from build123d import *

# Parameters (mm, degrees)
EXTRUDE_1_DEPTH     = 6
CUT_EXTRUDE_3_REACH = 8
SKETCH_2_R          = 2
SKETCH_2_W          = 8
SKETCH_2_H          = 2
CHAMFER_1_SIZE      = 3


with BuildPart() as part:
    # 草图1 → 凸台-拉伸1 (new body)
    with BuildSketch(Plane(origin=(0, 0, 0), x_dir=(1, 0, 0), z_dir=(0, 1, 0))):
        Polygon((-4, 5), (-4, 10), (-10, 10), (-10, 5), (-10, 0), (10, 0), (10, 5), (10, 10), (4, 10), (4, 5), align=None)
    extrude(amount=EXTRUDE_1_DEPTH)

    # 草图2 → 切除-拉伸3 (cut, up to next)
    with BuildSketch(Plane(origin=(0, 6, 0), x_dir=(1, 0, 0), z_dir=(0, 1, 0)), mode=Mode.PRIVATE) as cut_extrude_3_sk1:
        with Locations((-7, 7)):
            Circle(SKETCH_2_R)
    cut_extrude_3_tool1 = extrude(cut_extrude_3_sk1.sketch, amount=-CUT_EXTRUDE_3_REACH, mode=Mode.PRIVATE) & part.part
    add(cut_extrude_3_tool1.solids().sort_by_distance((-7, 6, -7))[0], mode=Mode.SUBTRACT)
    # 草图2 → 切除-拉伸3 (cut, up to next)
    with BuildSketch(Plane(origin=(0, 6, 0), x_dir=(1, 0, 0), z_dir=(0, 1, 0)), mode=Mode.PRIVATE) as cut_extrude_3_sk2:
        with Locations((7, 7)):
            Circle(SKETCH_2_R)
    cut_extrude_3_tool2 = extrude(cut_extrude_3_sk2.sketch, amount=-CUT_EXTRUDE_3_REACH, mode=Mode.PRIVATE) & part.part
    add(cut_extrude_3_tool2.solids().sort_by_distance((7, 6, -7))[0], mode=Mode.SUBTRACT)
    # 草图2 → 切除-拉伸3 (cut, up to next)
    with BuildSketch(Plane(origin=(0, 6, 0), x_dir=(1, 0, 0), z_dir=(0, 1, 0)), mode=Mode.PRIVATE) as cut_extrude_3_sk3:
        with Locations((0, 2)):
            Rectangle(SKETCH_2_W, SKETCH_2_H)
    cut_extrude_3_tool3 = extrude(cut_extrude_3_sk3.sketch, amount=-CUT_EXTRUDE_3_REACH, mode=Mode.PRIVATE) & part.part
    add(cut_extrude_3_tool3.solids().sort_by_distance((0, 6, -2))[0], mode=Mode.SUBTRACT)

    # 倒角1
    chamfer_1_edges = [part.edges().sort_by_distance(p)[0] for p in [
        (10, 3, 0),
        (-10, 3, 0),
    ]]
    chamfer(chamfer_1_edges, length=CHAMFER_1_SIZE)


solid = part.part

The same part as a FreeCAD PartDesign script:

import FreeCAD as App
import Part
import Sketcher

V = App.Vector
Q = App.Units.Quantity


def edges_at(feature, points):
    """Names of the edges that pass closest to the given points."""
    edges = feature.Shape.Edges
    near = lambda p: min(range(len(edges)), key=lambda i: edges[i].distToShape(Part.Vertex(*p))[0])
    return sorted({f"Edge{near(p) + 1}" for p in points})

doc = App.newDocument("Part")
params = doc.addObject("Spreadsheet::Sheet", "Params")
for row, (alias, value) in enumerate([
    ("sketch1_width", "6 mm"),
    ("sketch1_width2", "20 mm"),
    ("sketch1_height", "5 mm"),
    ("sketch1_height2", "10 mm"),
    ("pad1_length", "6 mm"),
    ("sketch2_diameter", "4 mm"),
    ("sketch3_diameter", "4 mm"),
    ("sketch4_width", "8 mm"),
    ("sketch4_height", "2 mm"),
    ("chamfer_size", "3 mm"),
], start=1):
    params.set(f"A{row}", alias)
    params.set(f"B{row}", "=" + value)
    params.setAlias(f"B{row}", alias)

body = doc.addObject("PartDesign::Body", "Body")

sketch1 = body.newObject("Sketcher::SketchObject", "Sketch")
sketch1.AttachmentSupport = (doc.getObject("XZ_Plane"), [""])
sketch1.MapMode = "FlatFace"
sketch1.addGeometry([
    Part.LineSegment(V(-4, -5, 0), V(-4, -10, 0)),
    Part.LineSegment(V(-4, -10, 0), V(-10, -10, 0)),
    Part.LineSegment(V(-10, -10, 0), V(-10, 0, 0)),
    Part.LineSegment(V(-10, 0, 0), V(10, 0, 0)),
    Part.LineSegment(V(10, 0, 0), V(10, -10, 0)),
    Part.LineSegment(V(10, -10, 0), V(4, -10, 0)),
    Part.LineSegment(V(4, -10, 0), V(4, -5, 0)),
    Part.LineSegment(V(4, -5, 0), V(-4, -5, 0)),
], False)
sketch1.addConstraint([
    Sketcher.Constraint("Coincident", 0, 2, 1, 1),
    Sketcher.Constraint("Coincident", 1, 2, 2, 1),
    Sketcher.Constraint("Coincident", 2, 2, 3, 1),
    Sketcher.Constraint("Coincident", 3, 2, 4, 1),
    Sketcher.Constraint("Coincident", 4, 2, 5, 1),
    Sketcher.Constraint("Coincident", 5, 2, 6, 1),
    Sketcher.Constraint("Coincident", 6, 2, 7, 1),
    Sketcher.Constraint("Coincident", 7, 2, 0, 1),
    Sketcher.Constraint("Vertical", 0),
    Sketcher.Constraint("Horizontal", 1),
    Sketcher.Constraint("Vertical", 2),
    Sketcher.Constraint("Horizontal", 3),
    Sketcher.Constraint("Vertical", 4),
    Sketcher.Constraint("Horizontal", 5),
    Sketcher.Constraint("Vertical", 6),
    Sketcher.Constraint("Horizontal", 7),
    Sketcher.Constraint("Symmetric", 2, 2, 3, 2, -1, 1),
    Sketcher.Constraint("Symmetric", 0, 2, 5, 2, -2),
    Sketcher.Constraint("DistanceX", 1, 2, 1, 1, Q("6 mm")),
    Sketcher.Constraint("DistanceX", 3, 1, 3, 2, Q("20 mm")),
    Sketcher.Constraint("DistanceY", 0, 2, 0, 1, Q("5 mm")),
    Sketcher.Constraint("DistanceY", 2, 1, 2, 2, Q("10 mm")),
])
sketch1.setExpression("Constraints[18]", "Params.sketch1_width")
sketch1.setExpression("Constraints[19]", "Params.sketch1_width2")
sketch1.setExpression("Constraints[20]", "Params.sketch1_height")
sketch1.setExpression("Constraints[21]", "Params.sketch1_height2")
pad1 = body.newObject("PartDesign::Pad", "Pad")
pad1.Profile = sketch1
pad1.setExpression("Length", "Params.pad1_length")
pad1.Reversed = True

sketch2 = body.newObject("Sketcher::SketchObject", "Sketch001")
sketch2.AttachmentSupport = (doc.getObject("XZ_Plane"), [""])
sketch2.MapMode = "FlatFace"
sketch2.AttachmentOffset = App.Placement(V(0, 0, -6), App.Rotation())
sketch2.addGeometry(Part.Circle(V(-7, -7, 0), V(0, 0, 1), 2), False)
sketch2.addConstraint([
    Sketcher.Constraint("Diameter", 0, Q("4 mm")),
    Sketcher.Constraint("DistanceX", 0, 3, -1, 1, Q("7 mm")),
    Sketcher.Constraint("DistanceY", 0, 3, -1, 1, Q("7 mm")),
])
sketch2.setExpression("Constraints[0]", "Params.sketch2_diameter")
pocket1 = body.newObject("PartDesign::Pocket", "Pocket")
pocket1.Profile = sketch2
pocket1.Type = "UpToFirst"
pocket1.Reversed = True

sketch3 = body.newObject("Sketcher::SketchObject", "Sketch002")
sketch3.AttachmentSupport = (doc.getObject("XZ_Plane"), [""])
sketch3.MapMode = "FlatFace"
sketch3.AttachmentOffset = App.Placement(V(0, 0, -6), App.Rotation())
sketch3.addGeometry(Part.Circle(V(7, -7, 0), V(0, 0, 1), 2), False)
sketch3.addConstraint([
    Sketcher.Constraint("Diameter", 0, Q("4 mm")),
    Sketcher.Constraint("DistanceX", -1, 1, 0, 3, Q("7 mm")),
    Sketcher.Constraint("DistanceY", 0, 3, -1, 1, Q("7 mm")),
])
sketch3.setExpression("Constraints[0]", "Params.sketch3_diameter")
pocket2 = body.newObject("PartDesign::Pocket", "Pocket001")
pocket2.Profile = sketch3
pocket2.Type = "UpToFirst"
pocket2.Reversed = True

sketch4 = body.newObject("Sketcher::SketchObject", "Sketch003")
sketch4.AttachmentSupport = (doc.getObject("XZ_Plane"), [""])
sketch4.MapMode = "FlatFace"
sketch4.AttachmentOffset = App.Placement(V(0, 0, -6), App.Rotation())
sketch4.addGeometry([
    Part.LineSegment(V(-4, -3, 0), V(-4, -1, 0)),
    Part.LineSegment(V(-4, -1, 0), V(4, -1, 0)),
    Part.LineSegment(V(4, -1, 0), V(4, -3, 0)),
    Part.LineSegment(V(4, -3, 0), V(-4, -3, 0)),
], False)
sketch4.addConstraint([
    Sketcher.Constraint("Coincident", 0, 2, 1, 1),
    Sketcher.Constraint("Coincident", 1, 2, 2, 1),
    Sketcher.Constraint("Coincident", 2, 2, 3, 1),
    Sketcher.Constraint("Coincident", 3, 2, 0, 1),
    Sketcher.Constraint("Vertical", 0),
    Sketcher.Constraint("Horizontal", 1),
    Sketcher.Constraint("Vertical", 2),
    Sketcher.Constraint("Horizontal", 3),
    Sketcher.Constraint("DistanceX", 1, 1, 1, 2, Q("8 mm")),
    Sketcher.Constraint("DistanceY", 0, 1, 0, 2, Q("2 mm")),
    Sketcher.Constraint("DistanceX", 0, 2, -1, 1, Q("4 mm")),
    Sketcher.Constraint("DistanceY", 0, 2, -1, 1, Q("1 mm")),
])
sketch4.setExpression("Constraints[8]", "Params.sketch4_width")
sketch4.setExpression("Constraints[9]", "Params.sketch4_height")
pocket3 = body.newObject("PartDesign::Pocket", "Pocket002")
pocket3.Profile = sketch4
pocket3.Type = "UpToFirst"
pocket3.Reversed = True
doc.recompute()

chamfer = body.newObject("PartDesign::Chamfer", "Chamfer")
chamfer.Base = (pocket3, edges_at(pocket3, [(10, 3, 0), (-10, 3, 0)]))
chamfer.setExpression("Size", "Params.chamfer_size")

doc.recompute()
